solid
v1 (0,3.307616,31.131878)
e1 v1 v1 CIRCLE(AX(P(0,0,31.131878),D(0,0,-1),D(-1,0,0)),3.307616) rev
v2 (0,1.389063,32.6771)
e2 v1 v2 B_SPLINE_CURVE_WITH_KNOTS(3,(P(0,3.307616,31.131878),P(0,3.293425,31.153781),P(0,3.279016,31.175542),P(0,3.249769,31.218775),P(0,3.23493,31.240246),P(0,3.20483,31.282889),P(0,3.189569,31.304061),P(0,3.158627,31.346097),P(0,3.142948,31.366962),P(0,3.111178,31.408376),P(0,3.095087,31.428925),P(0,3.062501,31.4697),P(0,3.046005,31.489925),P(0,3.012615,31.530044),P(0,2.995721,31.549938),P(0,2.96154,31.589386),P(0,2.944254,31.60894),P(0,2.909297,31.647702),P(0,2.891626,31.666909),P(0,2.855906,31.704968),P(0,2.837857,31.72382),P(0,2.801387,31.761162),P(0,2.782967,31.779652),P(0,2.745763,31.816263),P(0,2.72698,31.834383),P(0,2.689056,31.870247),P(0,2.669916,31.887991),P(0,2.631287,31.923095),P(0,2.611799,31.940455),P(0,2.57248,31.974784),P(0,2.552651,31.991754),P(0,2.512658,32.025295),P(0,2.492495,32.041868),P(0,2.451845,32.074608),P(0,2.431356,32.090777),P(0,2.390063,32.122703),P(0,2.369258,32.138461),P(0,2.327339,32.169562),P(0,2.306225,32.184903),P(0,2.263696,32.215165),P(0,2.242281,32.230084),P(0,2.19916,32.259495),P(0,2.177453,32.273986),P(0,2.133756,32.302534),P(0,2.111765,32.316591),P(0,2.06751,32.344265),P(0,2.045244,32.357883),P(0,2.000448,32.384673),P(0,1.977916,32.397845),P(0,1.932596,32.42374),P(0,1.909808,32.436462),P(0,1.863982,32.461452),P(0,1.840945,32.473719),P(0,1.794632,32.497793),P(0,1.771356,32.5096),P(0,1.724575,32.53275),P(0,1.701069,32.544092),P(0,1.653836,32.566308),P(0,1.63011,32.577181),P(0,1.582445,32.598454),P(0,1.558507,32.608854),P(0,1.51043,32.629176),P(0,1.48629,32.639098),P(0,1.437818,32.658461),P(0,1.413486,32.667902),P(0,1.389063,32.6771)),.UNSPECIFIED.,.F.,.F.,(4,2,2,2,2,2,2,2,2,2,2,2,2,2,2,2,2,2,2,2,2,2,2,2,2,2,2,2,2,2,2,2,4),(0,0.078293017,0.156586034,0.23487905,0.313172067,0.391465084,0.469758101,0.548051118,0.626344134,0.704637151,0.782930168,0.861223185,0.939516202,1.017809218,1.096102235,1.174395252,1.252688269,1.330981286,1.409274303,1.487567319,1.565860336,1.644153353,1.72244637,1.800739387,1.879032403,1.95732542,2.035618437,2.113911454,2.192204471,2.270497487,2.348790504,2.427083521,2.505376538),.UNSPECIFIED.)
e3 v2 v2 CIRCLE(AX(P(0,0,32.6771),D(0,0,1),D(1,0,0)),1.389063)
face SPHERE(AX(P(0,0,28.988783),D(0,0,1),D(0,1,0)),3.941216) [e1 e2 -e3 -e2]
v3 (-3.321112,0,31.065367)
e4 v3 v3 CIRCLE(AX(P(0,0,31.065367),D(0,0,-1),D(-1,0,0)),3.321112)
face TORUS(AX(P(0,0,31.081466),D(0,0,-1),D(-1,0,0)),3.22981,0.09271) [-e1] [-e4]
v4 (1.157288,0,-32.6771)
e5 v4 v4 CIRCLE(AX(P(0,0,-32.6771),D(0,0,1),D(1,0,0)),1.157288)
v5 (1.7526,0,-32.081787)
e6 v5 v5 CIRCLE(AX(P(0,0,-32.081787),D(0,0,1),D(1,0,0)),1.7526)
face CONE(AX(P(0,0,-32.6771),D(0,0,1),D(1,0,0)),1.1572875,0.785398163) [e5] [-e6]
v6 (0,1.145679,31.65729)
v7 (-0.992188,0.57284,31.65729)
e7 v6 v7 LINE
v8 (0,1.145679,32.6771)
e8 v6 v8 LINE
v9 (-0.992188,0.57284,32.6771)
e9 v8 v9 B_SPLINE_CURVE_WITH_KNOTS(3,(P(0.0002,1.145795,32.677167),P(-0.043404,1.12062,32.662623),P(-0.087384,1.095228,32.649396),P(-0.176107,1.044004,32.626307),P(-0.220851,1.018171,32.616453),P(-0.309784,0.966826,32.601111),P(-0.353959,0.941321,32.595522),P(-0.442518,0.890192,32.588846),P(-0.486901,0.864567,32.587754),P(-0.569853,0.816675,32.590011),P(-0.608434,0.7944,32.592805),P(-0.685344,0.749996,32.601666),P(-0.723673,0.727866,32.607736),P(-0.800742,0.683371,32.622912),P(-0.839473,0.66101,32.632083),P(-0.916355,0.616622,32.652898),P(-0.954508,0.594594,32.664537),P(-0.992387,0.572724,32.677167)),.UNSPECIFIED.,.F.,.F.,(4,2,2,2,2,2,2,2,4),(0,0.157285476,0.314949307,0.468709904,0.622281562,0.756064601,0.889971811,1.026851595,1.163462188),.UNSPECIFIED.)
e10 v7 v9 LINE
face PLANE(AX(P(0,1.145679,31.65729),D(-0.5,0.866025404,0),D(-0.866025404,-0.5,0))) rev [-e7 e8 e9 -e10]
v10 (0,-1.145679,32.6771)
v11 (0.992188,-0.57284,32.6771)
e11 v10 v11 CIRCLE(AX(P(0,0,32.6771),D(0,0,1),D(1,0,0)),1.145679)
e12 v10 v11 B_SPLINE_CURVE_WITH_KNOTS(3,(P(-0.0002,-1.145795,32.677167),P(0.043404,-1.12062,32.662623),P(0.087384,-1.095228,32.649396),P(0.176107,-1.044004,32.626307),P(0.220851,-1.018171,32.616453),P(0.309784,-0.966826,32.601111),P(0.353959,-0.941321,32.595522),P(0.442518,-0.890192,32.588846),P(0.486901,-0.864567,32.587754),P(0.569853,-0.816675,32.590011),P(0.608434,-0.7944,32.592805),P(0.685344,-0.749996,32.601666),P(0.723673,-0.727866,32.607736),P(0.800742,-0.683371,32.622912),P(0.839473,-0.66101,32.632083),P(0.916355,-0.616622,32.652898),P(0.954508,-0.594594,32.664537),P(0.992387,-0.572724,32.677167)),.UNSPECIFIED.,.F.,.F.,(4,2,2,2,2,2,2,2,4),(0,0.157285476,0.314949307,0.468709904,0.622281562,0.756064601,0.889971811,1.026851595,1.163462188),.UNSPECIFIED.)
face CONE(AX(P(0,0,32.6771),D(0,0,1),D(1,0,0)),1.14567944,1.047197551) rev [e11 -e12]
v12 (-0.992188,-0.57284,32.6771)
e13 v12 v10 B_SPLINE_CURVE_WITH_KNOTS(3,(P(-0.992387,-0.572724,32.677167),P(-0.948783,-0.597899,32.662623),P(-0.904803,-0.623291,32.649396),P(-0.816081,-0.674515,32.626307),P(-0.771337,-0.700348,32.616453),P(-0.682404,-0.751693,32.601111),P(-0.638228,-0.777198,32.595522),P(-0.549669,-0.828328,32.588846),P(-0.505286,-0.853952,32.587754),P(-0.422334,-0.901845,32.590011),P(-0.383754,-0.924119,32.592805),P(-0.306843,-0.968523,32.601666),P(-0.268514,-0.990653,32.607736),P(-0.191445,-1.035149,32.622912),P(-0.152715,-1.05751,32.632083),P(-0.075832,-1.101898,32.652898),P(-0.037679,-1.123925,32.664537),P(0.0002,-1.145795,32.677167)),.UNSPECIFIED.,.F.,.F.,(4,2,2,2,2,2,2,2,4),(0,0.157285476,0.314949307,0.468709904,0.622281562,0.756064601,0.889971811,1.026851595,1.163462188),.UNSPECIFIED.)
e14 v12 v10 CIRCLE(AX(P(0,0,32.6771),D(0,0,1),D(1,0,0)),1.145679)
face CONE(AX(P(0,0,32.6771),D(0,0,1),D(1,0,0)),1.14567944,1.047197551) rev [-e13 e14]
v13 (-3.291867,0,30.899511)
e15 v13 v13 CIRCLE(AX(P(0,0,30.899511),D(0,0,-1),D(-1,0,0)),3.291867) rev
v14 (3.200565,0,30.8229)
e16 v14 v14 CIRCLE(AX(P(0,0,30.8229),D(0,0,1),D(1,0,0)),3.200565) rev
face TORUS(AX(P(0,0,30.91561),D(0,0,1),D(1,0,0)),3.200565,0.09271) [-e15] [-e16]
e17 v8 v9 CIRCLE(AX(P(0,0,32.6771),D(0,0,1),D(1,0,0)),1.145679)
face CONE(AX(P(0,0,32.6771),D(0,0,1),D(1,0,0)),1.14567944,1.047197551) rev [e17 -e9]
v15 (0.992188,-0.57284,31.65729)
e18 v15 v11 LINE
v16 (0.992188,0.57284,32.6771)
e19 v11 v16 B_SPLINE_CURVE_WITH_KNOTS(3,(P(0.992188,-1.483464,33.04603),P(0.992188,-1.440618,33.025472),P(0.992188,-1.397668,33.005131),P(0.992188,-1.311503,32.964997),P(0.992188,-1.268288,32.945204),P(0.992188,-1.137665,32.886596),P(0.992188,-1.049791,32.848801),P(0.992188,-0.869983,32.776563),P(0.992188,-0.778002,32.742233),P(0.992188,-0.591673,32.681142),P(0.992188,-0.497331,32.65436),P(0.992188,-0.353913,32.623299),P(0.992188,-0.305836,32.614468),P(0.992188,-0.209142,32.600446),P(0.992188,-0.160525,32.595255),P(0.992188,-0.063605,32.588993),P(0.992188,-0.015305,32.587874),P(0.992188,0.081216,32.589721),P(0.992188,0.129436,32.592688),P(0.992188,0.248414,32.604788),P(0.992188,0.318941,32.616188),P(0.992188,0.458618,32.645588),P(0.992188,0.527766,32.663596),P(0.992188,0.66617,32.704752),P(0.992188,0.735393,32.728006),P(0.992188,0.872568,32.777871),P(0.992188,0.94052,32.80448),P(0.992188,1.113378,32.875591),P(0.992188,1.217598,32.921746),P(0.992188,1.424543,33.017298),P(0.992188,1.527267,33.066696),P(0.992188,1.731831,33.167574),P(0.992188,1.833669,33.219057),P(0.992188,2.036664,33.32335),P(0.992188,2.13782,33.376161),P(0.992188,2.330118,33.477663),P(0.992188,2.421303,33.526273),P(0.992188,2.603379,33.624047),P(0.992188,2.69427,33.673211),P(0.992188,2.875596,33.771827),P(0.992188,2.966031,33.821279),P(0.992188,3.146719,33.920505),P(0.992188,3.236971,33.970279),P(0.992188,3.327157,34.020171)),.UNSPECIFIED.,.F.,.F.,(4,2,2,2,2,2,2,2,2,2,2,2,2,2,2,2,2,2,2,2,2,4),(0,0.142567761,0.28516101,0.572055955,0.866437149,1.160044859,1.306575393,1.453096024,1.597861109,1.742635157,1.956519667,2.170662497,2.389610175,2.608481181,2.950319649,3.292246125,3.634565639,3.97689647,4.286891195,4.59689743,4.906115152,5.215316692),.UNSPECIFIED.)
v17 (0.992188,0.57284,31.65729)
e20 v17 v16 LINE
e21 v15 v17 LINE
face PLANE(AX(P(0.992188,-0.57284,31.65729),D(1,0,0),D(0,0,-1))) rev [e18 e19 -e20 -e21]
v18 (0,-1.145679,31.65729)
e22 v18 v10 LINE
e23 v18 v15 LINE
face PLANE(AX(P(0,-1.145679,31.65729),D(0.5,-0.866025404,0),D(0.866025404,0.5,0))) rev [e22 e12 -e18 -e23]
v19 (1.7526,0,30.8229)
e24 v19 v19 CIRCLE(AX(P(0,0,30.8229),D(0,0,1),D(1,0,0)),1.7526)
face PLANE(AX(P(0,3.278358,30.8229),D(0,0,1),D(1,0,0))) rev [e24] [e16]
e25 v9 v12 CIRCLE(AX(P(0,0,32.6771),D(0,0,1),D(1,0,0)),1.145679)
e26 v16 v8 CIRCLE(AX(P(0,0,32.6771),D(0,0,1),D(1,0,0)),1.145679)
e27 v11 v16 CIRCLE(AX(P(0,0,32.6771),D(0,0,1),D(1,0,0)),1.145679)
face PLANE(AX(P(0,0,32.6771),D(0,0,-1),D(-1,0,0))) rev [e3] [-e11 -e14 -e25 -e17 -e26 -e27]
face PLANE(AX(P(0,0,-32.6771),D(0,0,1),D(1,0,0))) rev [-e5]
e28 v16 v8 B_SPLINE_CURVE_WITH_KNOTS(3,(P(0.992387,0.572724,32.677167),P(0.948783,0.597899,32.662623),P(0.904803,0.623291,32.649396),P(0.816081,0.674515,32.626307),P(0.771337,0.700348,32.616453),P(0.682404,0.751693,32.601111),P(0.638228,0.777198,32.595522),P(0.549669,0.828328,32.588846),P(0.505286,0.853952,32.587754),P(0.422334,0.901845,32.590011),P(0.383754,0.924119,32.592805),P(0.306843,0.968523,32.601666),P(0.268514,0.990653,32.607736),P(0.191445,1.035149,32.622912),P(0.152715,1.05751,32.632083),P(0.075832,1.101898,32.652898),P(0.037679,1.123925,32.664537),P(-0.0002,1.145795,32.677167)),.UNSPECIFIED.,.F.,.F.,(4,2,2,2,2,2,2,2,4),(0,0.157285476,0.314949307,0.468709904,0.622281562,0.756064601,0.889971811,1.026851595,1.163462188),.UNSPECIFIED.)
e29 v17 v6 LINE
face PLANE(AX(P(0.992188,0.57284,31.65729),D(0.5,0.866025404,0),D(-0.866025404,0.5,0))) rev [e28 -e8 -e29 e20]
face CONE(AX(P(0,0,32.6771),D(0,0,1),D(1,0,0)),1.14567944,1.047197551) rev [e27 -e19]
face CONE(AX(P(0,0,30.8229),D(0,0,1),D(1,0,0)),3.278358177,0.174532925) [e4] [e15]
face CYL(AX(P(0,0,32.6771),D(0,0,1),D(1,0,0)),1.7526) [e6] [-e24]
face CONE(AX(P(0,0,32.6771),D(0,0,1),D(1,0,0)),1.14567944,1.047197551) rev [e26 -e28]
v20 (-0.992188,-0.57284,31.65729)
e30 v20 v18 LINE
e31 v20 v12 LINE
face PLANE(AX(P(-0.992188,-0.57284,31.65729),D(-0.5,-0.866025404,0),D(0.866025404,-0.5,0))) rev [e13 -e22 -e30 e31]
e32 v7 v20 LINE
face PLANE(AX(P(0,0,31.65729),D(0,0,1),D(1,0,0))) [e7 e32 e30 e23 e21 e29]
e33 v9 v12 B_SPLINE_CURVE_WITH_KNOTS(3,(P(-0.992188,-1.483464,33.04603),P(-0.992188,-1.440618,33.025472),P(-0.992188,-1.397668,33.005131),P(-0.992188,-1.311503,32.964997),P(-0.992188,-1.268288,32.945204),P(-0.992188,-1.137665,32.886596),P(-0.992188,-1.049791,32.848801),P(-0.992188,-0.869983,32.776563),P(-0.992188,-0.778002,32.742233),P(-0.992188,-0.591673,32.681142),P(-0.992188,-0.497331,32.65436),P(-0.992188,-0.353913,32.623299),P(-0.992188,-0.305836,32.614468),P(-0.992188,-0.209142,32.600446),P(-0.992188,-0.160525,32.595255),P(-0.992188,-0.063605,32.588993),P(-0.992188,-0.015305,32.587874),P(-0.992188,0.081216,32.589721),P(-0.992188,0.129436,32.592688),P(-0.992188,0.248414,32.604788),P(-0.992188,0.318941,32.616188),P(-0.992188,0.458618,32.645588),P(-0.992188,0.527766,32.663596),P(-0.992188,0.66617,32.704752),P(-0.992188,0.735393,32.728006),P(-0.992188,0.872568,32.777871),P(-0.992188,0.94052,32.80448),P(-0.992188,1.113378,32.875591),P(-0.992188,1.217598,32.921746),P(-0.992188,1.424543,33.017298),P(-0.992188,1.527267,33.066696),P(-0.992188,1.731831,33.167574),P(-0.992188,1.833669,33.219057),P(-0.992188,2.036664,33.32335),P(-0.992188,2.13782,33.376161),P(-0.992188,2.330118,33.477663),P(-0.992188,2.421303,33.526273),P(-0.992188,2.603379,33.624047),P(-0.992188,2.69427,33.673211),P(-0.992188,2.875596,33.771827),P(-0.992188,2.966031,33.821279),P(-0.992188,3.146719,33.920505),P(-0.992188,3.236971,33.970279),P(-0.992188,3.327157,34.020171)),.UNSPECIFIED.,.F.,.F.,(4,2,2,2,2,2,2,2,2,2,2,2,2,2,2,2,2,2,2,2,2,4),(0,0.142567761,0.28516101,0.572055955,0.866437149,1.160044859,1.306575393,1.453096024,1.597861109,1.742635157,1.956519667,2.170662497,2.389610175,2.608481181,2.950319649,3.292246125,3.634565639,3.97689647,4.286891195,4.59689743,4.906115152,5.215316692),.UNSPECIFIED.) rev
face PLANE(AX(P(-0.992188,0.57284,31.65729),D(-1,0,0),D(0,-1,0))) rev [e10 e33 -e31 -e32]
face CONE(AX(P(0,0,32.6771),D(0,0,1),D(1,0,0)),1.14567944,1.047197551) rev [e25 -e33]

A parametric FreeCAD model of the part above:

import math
import FreeCAD as App
import Part
import Sketcher

V = App.Vector
Q = App.Units.Quantity


def edges_at(feature, points):
    """Names of the edges that pass closest to the given points."""
    edges = feature.Shape.Edges
    near = lambda p: min(range(len(edges)), key=lambda i: edges[i].distToShape(Part.Vertex(*p))[0])
    return sorted({f"Edge{near(p) + 1}" for p in points})

doc = App.newDocument("Part")
body = doc.addObject("PartDesign::Body", "Body")

# Sketch on YZ plane
sketch1 = body.newObject("Sketcher::SketchObject", "Sketch")
sketch1.AttachmentSupport = (doc.getObject("YZ_Plane"), [""])
sketch1.MapMode = "FlatFace"
sketch1.addGeometry([
    Part.LineSegment(V(1.39, 32.68, 0), V(0, 32.68, 0)),  # 0
    Part.LineSegment(V(0, 32.68, 0), V(0, -32.68, 0)),  # 1
    Part.LineSegment(V(0, -32.68, 0), V(1.16, -32.68, 0)),  # 2
    Part.LineSegment(V(1.16, -32.68, 0), V(1.75, -32.08, 0)),  # 3
    Part.LineSegment(V(1.75, -32.08, 0), V(1.75, 30.82, 0)),  # 4
    Part.LineSegment(V(1.75, 30.82, 0), V(3.28, 30.82, 0)),  # 5
    Part.LineSegment(V(3.28, 30.82, 0), V(3.33, 31.1, 0)),  # 6
    Part.ArcOfCircle(Part.Circle(V(0, 28.99, 0), V(0, 0, 1), 3.94), math.radians(32), math.radians(69)),  # 7
], False)
sketch1.addConstraint([
    Sketcher.Constraint("Coincident", 0, 2, 1, 1),
    Sketcher.Constraint("Coincident", 1, 2, 2, 1),
    Sketcher.Constraint("Coincident", 2, 2, 3, 1),
    Sketcher.Constraint("Coincident", 3, 2, 4, 1),
    Sketcher.Constraint("Coincident", 4, 2, 5, 1),
    Sketcher.Constraint("Coincident", 5, 2, 6, 1),
    Sketcher.Constraint("Coincident", 6, 2, 7, 1),
    Sketcher.Constraint("Coincident", 7, 2, 0, 1),
    Sketcher.Constraint("Horizontal", 0),
    Sketcher.Constraint("Vertical", 1),
    Sketcher.Constraint("Horizontal", 2),
    Sketcher.Constraint("Vertical", 4),
    Sketcher.Constraint("Horizontal", 5),
    Sketcher.Constraint("Symmetric", 0, 2, 1, 2, -1, 1),
    Sketcher.Constraint("PointOnObject", 7, 3, -2),
    Sketcher.Constraint("Angle", 3, Q("45 deg")),
    Sketcher.Constraint("Angle", 6, Q("80 deg")),
    Sketcher.Constraint("DistanceY", 2, 2, 4, 2, Q("2.5 in")),
    Sketcher.Constraint("DistanceY", 1, 2, 1, 1, Q("2.573 in")),
    Sketcher.Constraint("DistanceX", -1, 1, 3, 2, Q("0.069 in")),
    Sketcher.Constraint("DistanceX", -1, 1, 6, 2, Q("0.131 in")),
    Sketcher.Constraint("Radius", 7, 3.941216),
    Sketcher.Constraint("Distance", 3, 0.841899),
    Sketcher.Constraint("DistanceX", 5, 1, 5, 2, 1.525758),
])
revolution = body.newObject("PartDesign::Revolution", "Revolution")
revolution.Profile = sketch1
revolution.ReferenceAxis = (sketch1, ["V_Axis"])
revolution.Angle = 360

# Sketch on XY plane
sketch2 = body.newObject("Sketcher::SketchObject", "Sketch001")
sketch2.AttachmentSupport = (doc.getObject("XY_Plane"), [""])
sketch2.MapMode = "FlatFace"
sketch2.AttachmentOffset = App.Placement(V(0, 0, 1.2865 * 25.4), App.Rotation())
sketch2.addGeometry([
    Part.LineSegment(V(-1, -0.6, 0), V(0, -1.1, 0)),  # 0
    Part.LineSegment(V(0, -1.1, 0), V(1, -0.6, 0)),  # 1
    Part.LineSegment(V(1, -0.6, 0), V(1, 0.6, 0)),  # 2
    Part.LineSegment(V(1, 0.6, 0), V(0, 1.1, 0)),  # 3
    Part.LineSegment(V(0, 1.1, 0), V(-1, 0.6, 0)),  # 4
    Part.LineSegment(V(-1, 0.6, 0), V(-1, -0.6, 0)),  # 5
], False)
sketch2.addConstraint([
    Sketcher.Constraint("Coincident", 0, 2, 1, 1),
    Sketcher.Constraint("Coincident", 1, 2, 2, 1),
    Sketcher.Constraint("Coincident", 2, 2, 3, 1),
    Sketcher.Constraint("Coincident", 3, 2, 4, 1),
    Sketcher.Constraint("Coincident", 4, 2, 5, 1),
    Sketcher.Constraint("Coincident", 5, 2, 0, 1),
    Sketcher.Constraint("Vertical", 2),
    Sketcher.Constraint("Vertical", 5),
    Sketcher.Constraint("Symmetric", 0, 2, 3, 2, -1, 1),
    Sketcher.Constraint("Symmetric", 1, 2, 4, 2, -1, 1),
    Sketcher.Constraint("PointOnObject", 0, 2, -2),
    Sketcher.Constraint("Parallel", 0, 3),
    Sketcher.Constraint("Horizontal", 2, 2, 4, 2),
    Sketcher.Constraint("Angle", 0, Q("-30 deg")),
    Sketcher.Constraint("DistanceX", 4, 2, 2, 2, Q("0.078125 in")),
    Sketcher.Constraint("DistanceY", 2, 1, 2, 2, 1.145679),
])
pocket1 = body.newObject("PartDesign::Pocket", "Pocket")
pocket1.Profile = sketch2
pocket1.Length = 1.01981

# Sketch on YZ plane
sketch3 = body.newObject("Sketcher::SketchObject", "Sketch002")
sketch3.AttachmentSupport = (doc.getObject("YZ_Plane"), [""])
sketch3.MapMode = "FlatFace"
sketch3.addGeometry([
    Part.LineSegment(V(0, 32.7, 0), V(-1.1, 32.7, 0)),
    Part.LineSegment(V(-1.1, 32.7, 0), V(0, 32, 0)),
    Part.LineSegment(V(0, 32, 0), V(0, 32.7, 0)),
], False)
sketch3.addConstraint([
    Sketcher.Constraint("Coincident", 0, 2, 1, 1),
    Sketcher.Constraint("Coincident", 1, 2, 2, 1),
    Sketcher.Constraint("Coincident", 2, 2, 0, 1),
    Sketcher.Constraint("Horizontal", 0),
    Sketcher.Constraint("Vertical", 2),
    Sketcher.Constraint("PointOnObject", 1, 2, -2),
    Sketcher.Constraint("Angle", 1, Q("-30 deg")),
    Sketcher.Constraint("DistanceY", -1, 1, 0, 2, Q("1.2865 in")),
    Sketcher.Constraint("DistanceX", 0, 2, 0, 1, 1.145679),
])
groove = body.newObject("PartDesign::Groove", "Groove")
groove.Profile = sketch3
groove.ReferenceAxis = (sketch3, ["V_Axis"])
groove.Angle = 360
doc.recompute()

fillet = body.newObject("PartDesign::Fillet", "Fillet")
fillet.Base = (groove, edges_at(groove, [(-3.278, 0, 30.823), (-3.327, 0, 31.101)]))
fillet.Radius = 0.09271

doc.recompute()
